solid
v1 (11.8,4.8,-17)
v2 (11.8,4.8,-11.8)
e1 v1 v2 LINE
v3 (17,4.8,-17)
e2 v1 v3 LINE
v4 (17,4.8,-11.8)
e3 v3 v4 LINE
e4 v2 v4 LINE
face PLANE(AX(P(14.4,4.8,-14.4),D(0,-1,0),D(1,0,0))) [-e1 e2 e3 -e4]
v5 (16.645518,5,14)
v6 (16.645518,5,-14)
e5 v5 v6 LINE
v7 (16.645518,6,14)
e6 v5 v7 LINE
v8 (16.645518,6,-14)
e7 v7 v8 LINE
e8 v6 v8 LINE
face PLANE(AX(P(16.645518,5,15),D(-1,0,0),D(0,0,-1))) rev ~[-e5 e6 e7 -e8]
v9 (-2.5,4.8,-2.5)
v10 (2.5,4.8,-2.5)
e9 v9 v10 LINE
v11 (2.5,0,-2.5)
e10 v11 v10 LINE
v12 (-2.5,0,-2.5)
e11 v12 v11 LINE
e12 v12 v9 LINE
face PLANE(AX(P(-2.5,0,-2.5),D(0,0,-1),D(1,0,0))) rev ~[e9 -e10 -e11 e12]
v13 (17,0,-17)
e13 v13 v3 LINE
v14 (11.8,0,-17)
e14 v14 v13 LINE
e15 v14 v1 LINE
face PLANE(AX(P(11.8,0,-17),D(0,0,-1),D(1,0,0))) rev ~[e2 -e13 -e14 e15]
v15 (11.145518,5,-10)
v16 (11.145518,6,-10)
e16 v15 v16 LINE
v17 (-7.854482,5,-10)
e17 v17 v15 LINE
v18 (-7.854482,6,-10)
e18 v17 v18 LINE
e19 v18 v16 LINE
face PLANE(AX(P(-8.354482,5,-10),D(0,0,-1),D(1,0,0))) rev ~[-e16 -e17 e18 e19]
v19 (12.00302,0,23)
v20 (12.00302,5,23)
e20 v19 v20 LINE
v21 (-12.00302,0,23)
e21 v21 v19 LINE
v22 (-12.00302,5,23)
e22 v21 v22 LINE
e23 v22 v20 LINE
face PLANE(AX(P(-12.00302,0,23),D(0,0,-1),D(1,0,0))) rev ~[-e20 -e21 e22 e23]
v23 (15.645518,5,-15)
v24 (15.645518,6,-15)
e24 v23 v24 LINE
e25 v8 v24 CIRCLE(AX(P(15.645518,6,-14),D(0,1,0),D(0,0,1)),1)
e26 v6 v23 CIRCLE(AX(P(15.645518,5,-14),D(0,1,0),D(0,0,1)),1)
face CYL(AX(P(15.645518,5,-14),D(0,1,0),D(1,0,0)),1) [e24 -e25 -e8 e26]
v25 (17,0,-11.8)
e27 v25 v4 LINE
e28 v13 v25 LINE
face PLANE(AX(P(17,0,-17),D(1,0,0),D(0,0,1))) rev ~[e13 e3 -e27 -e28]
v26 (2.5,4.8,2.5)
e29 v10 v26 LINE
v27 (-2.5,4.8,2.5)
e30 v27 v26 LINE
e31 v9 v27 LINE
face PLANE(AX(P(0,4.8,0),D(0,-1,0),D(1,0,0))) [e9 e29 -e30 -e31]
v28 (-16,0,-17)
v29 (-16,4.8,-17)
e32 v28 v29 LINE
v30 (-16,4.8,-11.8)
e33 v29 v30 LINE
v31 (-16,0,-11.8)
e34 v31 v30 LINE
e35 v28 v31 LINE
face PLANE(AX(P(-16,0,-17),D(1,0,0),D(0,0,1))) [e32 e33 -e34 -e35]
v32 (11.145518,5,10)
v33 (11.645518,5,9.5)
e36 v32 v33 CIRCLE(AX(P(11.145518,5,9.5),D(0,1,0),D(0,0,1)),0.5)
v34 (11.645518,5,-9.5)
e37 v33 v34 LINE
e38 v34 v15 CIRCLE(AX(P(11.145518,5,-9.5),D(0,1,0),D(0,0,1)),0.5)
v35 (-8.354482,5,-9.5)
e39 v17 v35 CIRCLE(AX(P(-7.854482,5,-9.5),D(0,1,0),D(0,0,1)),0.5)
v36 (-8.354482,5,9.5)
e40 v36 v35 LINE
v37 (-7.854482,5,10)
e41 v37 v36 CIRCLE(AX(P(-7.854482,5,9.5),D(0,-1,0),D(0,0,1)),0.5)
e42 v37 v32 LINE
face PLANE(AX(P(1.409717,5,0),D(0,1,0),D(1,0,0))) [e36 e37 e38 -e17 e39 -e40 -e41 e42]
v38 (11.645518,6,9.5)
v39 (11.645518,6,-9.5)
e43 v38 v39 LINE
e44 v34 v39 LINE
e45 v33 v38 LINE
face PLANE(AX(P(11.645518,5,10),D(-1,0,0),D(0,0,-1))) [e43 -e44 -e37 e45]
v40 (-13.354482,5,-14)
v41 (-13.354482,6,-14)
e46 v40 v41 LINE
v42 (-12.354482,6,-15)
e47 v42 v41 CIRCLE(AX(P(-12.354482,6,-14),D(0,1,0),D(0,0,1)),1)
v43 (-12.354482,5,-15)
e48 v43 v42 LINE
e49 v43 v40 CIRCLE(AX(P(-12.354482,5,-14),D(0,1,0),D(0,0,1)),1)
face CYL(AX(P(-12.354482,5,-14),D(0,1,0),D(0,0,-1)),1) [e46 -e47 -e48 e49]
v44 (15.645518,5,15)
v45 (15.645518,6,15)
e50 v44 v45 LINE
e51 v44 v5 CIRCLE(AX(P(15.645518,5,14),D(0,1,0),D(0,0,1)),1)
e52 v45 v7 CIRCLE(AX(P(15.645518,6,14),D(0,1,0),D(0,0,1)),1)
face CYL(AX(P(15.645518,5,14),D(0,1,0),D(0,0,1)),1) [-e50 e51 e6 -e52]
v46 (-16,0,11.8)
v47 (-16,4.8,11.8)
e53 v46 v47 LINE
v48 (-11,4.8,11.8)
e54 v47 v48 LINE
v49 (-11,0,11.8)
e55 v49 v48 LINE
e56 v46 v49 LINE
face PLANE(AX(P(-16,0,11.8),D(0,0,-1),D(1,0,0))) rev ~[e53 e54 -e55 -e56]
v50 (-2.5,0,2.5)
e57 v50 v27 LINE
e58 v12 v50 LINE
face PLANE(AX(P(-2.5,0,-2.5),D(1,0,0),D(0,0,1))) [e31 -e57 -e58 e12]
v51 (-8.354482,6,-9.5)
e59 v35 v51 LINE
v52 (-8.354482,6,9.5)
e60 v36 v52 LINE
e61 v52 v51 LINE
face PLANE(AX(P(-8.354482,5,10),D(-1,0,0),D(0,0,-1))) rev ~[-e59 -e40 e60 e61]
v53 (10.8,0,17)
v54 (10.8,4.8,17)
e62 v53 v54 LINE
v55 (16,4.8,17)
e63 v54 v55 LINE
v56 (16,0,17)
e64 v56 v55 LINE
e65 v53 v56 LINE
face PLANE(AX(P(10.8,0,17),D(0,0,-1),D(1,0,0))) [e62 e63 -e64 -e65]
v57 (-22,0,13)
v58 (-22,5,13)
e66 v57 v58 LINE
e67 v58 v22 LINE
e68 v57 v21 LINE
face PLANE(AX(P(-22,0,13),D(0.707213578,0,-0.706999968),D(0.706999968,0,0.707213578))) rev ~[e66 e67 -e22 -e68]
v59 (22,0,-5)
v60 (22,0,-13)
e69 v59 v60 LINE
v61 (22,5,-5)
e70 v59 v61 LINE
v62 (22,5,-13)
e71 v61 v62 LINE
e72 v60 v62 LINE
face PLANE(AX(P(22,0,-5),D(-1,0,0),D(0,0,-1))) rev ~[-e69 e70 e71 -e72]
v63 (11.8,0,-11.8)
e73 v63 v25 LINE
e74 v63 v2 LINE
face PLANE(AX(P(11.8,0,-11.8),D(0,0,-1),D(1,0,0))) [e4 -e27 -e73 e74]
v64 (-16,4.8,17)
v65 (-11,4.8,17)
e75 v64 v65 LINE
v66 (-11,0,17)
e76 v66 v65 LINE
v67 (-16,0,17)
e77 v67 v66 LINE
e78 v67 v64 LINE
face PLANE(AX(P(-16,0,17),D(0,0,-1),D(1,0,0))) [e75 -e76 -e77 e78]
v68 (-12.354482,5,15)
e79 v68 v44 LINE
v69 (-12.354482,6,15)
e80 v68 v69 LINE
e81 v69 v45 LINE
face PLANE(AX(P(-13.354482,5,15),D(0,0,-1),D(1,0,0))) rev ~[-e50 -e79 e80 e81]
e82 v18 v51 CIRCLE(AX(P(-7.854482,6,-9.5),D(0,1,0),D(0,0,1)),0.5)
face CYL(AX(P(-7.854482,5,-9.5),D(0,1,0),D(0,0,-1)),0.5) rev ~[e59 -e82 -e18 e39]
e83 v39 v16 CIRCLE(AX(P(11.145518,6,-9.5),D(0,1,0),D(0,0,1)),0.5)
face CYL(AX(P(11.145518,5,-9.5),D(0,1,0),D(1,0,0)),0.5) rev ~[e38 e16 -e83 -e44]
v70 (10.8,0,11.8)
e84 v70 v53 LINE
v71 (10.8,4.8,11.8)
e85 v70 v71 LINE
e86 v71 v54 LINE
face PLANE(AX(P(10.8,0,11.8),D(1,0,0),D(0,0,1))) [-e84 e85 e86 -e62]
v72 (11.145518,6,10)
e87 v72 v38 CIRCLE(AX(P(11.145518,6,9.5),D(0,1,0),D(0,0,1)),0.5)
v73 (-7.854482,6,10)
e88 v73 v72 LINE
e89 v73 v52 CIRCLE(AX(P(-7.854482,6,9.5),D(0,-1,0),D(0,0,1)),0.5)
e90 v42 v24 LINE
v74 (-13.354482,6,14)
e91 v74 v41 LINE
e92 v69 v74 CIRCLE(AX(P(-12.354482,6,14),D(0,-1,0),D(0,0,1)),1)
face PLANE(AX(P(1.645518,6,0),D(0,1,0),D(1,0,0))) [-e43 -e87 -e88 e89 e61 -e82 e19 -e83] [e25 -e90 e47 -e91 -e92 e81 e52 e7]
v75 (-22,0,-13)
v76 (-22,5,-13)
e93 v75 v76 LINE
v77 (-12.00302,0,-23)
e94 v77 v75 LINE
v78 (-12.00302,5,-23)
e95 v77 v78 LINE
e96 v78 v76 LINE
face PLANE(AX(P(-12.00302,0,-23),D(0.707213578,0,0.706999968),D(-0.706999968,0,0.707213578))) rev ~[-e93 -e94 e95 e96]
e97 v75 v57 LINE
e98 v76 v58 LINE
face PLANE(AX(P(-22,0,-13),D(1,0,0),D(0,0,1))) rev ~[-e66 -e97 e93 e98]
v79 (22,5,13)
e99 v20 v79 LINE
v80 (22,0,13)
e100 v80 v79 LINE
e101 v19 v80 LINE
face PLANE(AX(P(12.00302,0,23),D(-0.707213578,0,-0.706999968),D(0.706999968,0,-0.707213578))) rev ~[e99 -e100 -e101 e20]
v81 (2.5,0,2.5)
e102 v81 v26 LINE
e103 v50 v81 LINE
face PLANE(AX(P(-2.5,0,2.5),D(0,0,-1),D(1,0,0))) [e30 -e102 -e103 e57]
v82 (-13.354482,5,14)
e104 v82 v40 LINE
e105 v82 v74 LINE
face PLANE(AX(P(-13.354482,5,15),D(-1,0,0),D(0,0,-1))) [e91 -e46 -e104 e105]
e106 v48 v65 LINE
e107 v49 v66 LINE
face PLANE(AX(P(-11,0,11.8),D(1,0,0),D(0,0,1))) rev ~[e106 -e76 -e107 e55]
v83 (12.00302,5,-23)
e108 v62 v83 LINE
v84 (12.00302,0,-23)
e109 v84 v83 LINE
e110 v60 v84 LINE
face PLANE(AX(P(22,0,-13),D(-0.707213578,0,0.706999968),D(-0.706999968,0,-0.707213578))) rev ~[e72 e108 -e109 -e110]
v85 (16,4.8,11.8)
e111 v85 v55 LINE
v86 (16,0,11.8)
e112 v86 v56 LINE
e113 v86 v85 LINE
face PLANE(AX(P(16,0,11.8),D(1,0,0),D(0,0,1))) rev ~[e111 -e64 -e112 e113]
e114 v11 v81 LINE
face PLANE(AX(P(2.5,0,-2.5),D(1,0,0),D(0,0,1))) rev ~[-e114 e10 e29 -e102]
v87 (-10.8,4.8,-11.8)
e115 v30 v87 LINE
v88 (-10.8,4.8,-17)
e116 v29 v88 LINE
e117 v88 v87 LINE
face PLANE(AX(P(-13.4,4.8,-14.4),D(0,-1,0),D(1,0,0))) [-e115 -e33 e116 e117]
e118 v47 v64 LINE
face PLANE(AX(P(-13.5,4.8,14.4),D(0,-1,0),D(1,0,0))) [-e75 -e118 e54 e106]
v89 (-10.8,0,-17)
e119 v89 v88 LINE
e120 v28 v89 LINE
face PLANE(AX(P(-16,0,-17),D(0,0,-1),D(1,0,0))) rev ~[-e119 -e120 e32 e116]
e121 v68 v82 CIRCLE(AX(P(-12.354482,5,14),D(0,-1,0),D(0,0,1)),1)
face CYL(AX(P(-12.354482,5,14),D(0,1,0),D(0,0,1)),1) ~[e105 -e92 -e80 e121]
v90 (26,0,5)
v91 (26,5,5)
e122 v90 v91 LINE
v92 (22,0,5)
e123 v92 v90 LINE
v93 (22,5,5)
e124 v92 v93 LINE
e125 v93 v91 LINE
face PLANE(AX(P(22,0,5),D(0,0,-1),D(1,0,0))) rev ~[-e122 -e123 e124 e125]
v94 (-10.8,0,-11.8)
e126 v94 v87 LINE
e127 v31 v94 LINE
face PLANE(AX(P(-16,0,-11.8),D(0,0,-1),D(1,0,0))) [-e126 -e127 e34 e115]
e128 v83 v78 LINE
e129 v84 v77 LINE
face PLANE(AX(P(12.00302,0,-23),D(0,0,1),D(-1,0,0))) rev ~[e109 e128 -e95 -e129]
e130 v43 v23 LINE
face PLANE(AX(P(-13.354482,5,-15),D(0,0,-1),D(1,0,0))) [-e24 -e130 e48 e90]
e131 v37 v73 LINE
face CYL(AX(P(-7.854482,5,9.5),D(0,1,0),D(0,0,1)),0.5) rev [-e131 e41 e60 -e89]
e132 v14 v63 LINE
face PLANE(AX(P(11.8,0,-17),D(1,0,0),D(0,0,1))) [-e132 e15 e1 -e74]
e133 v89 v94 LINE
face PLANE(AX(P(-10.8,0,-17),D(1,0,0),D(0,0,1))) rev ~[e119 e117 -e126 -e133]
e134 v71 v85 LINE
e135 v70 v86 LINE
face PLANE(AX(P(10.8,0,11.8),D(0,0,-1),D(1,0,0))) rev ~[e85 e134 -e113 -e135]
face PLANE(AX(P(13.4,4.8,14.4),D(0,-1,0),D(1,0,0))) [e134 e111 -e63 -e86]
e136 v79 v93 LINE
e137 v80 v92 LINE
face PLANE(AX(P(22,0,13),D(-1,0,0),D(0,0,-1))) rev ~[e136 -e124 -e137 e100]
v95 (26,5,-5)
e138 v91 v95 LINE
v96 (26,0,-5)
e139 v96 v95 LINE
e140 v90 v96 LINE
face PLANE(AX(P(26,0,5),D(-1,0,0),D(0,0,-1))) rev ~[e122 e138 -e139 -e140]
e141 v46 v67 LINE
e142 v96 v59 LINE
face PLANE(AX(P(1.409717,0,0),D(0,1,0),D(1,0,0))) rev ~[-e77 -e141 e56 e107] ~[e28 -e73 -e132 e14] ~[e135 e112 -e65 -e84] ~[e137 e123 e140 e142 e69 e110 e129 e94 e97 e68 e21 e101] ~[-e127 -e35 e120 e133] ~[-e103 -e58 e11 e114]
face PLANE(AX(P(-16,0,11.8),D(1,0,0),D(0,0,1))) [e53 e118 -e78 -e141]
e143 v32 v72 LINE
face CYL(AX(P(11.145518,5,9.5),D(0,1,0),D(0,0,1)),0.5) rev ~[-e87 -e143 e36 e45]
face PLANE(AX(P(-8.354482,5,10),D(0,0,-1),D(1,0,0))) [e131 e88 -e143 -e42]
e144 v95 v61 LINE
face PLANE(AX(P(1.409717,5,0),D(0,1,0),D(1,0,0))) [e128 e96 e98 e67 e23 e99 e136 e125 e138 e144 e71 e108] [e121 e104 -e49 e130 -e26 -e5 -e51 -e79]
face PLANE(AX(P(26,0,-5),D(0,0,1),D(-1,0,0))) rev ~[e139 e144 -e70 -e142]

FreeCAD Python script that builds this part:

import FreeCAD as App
import Part
import Sketcher
Q = App.Units.Quantity


def edges_at(feature, points):
    """Names of the edges that pass closest to the given points."""
    edges = feature.Shape.Edges
    near = lambda p: min(range(len(edges)), key=lambda i: edges[i].distToShape(Part.Vertex(*p))[0])
    return sorted({f"Edge{near(p) + 1}" for p in points})


def add_polygon(sketch, points):
    """Adds a closed chain of lines whose ends are joined by coincident constraints."""
    first, n = sketch.GeometryCount, len(points)
    for a, b in zip(points, points[1:] + points[:1]):
        sketch.addGeometry(Part.LineSegment(App.Vector(*a, 0), App.Vector(*b, 0)), False)
    for i in range(n):
        sketch.addConstraint(Sketcher.Constraint("Coincident", first + i, 2, first + (i + 1) % n, 1))

doc = App.newDocument("Part")
body = doc.addObject("PartDesign::Body", "Body")

sketch1 = body.newObject("Sketcher::SketchObject", "Sketch")
sketch1.AttachmentSupport = (doc.getObject("XZ_Plane"), [""])
sketch1.MapMode = "FlatFace"
add_polygon(sketch1, [(22, -13), (12, -23), (-12, -23), (-22, -13), (-22, 13), (-12, 23), (12, 23), (22, 13), (22, 5), (26, 5), (26, -5), (22, -5)])
sketch1.addConstraint(Sketcher.Constraint("Horizontal", 1))
sketch1.addConstraint(Sketcher.Constraint("Vertical", 3))
sketch1.addConstraint(Sketcher.Constraint("Horizontal", 5))
sketch1.addConstraint(Sketcher.Constraint("Vertical", 7))
sketch1.addConstraint(Sketcher.Constraint("Horizontal", 8))
sketch1.addConstraint(Sketcher.Constraint("Vertical", 9))
sketch1.addConstraint(Sketcher.Constraint("Horizontal", 10))
sketch1.addConstraint(Sketcher.Constraint("Vertical", 11))
sketch1.addConstraint(Sketcher.Constraint("Symmetric", 0, 2, 4, 2, -1, 1))
sketch1.addConstraint(Sketcher.Constraint("Symmetric", 2, 2, 6, 2, -1, 1))
sketch1.addConstraint(Sketcher.Constraint("Symmetric", 3, 2, 11, 2, -1, 1))
sketch1.addConstraint(Sketcher.Constraint("Parallel", 2, 6))
sketch1.addConstraint(Sketcher.Constraint("Horizontal", 3, 2, 6, 2))
sketch1.addConstraint(Sketcher.Constraint("Vertical", 1, 2, 4, 2))
sketch1.addConstraint(Sketcher.Constraint("Equal", 7, 11))
sketch1.addConstraint(Sketcher.Constraint("DistanceX", 8, 1, 8, 2, Q("4 mm")))
sketch1.addConstraint(Sketcher.Constraint("DistanceY", 3, 1, 3, 2, Q("26 mm")))
sketch1.addConstraint(Sketcher.Constraint("DistanceY", 7, 2, 7, 1, Q("8 mm")))
sketch1.addConstraint(Sketcher.Constraint("DistanceY", 0, 2, -1, 1, Q("23 mm")))
sketch1.addConstraint(Sketcher.Constraint("DistanceX", 2, 2, -1, 1, Q("22 mm")))
sketch1.addConstraint(Sketcher.Constraint("Distance", 0, Q("14.14 mm")))
pad1 = body.newObject("PartDesign::Pad", "Pad")
pad1.Profile = sketch1
pad1.Length = 5
pad1.Reversed = True

sketch2 = body.newObject("Sketcher::SketchObject", "Sketch001")
sketch2.AttachmentSupport = (doc.getObject("XZ_Plane"), [""])
sketch2.MapMode = "FlatFace"
sketch2.AttachmentOffset = App.Placement(App.Vector(0, 0, -5), App.Rotation())
add_polygon(sketch2, [(-13, -15), (-13, 15), (17, 15), (17, -15)])
add_polygon(sketch2, [(12, 10), (-8, 10), (-8, -10), (12, -10)])
sketch2.addConstraint(Sketcher.Constraint("Vertical", 0))
sketch2.addConstraint(Sketcher.Constraint("Horizontal", 1))
sketch2.addConstraint(Sketcher.Constraint("Vertical", 2))
sketch2.addConstraint(Sketcher.Constraint("Horizontal", 3))
sketch2.addConstraint(Sketcher.Constraint("Horizontal", 4))
sketch2.addConstraint(Sketcher.Constraint("Vertical", 5))
sketch2.addConstraint(Sketcher.Constraint("Horizontal", 6))
sketch2.addConstraint(Sketcher.Constraint("Vertical", 7))
sketch2.addConstraint(Sketcher.Constraint("Equal", 3, 0))
sketch2.addConstraint(Sketcher.Constraint("Equal", 6, 5))
sketch2.addConstraint(Sketcher.Constraint("DistanceX", 1, 1, 1, 2, Q("30 mm")))
sketch2.addConstraint(Sketcher.Constraint("DistanceX", 4, 2, 4, 1, Q("20 mm")))
sketch2.addConstraint(Sketcher.Constraint("DistanceY", -1, 1, 0, 2, Q("15 mm")))
sketch2.addConstraint(Sketcher.Constraint("DistanceY", -1, 1, 4, 2, Q("10 mm")))
sketch2.addConstraint(Sketcher.Constraint("DistanceX", 0, 2, 4, 2, Q("5 mm")))
sketch2.addConstraint(Sketcher.Constraint("DistanceX", 0, 2, -1, 1, Q("13.354482 mm")))
pad2 = body.newObject("PartDesign::Pad", "Pad001")
pad2.Profile = sketch2
pad2.Length = 1
pad2.Reversed = True

sketch3 = body.newObject("Sketcher::SketchObject", "Sketch002")
sketch3.AttachmentSupport = (doc.getObject("XZ_Plane"), [""])
sketch3.MapMode = "FlatFace"
add_polygon(sketch3, [(-16, 17), (-16, 12), (-11, 12), (-11, 17)])
add_polygon(sketch3, [(-16, -12), (-16, -17), (-11, -17), (-11, -12)])
add_polygon(sketch3, [(12, -12), (12, -17), (17, -17), (17, -12)])
add_polygon(sketch3, [(11, 17), (11, 12), (16, 12), (16, 17)])
add_polygon(sketch3, [(-2, 2), (-2, -2), (2, -2), (2, 2)])
sketch3.addConstraint(Sketcher.Constraint("Vertical", 0))
sketch3.addConstraint(Sketcher.Constraint("Horizontal", 1))
sketch3.addConstraint(Sketcher.Constraint("Vertical", 2))
sketch3.addConstraint(Sketcher.Constraint("Horizontal", 3))
sketch3.addConstraint(Sketcher.Constraint("Vertical", 4))
sketch3.addConstraint(Sketcher.Constraint("Horizontal", 5))
sketch3.addConstraint(Sketcher.Constraint("Vertical", 6))
sketch3.addConstraint(Sketcher.Constraint("Horizontal", 7))
sketch3.addConstraint(Sketcher.Constraint("Vertical", 8))
sketch3.addConstraint(Sketcher.Constraint("Horizontal", 9))
sketch3.addConstraint(Sketcher.Constraint("Vertical", 10))
sketch3.addConstraint(Sketcher.Constraint("Horizontal", 11))
sketch3.addConstraint(Sketcher.Constraint("Vertical", 12))
sketch3.addConstraint(Sketcher.Constraint("Horizontal", 13))
sketch3.addConstraint(Sketcher.Constraint("Vertical", 14))
sketch3.addConstraint(Sketcher.Constraint("Horizontal", 15))
sketch3.addConstraint(Sketcher.Constraint("Vertical", 16))
sketch3.addConstraint(Sketcher.Constraint("Horizontal", 17))
sketch3.addConstraint(Sketcher.Constraint("Vertical", 18))
sketch3.addConstraint(Sketcher.Constraint("Horizontal", 19))
sketch3.addConstraint(Sketcher.Constraint("Symmetric", 6, 2, 12, 2, -1, 1))
sketch3.addConstraint(Sketcher.Constraint("Symmetric", 4, 2, 14, 2, -1, 1))
sketch3.addConstraint(Sketcher.Constraint("Symmetric", 16, 2, 18, 2, -1, 1))
sketch3.addConstraint(Sketcher.Constraint("Symmetric", 0, 2, 13, 2, -2))
sketch3.addConstraint(Sketcher.Constraint("Horizontal", 5, 2, 8, 2))
sketch3.addConstraint(Sketcher.Constraint("Horizontal", 7, 2, 10, 2))
sketch3.addConstraint(Sketcher.Constraint("Horizontal", 3, 2, 14, 2))
sketch3.addConstraint(Sketcher.Constraint("Equal", 7, 9))
sketch3.addConstraint(Sketcher.Constraint("Equal", 3, 17))
sketch3.addConstraint(Sketcher.Constraint("Equal", 15, 0))
sketch3.addConstraint(Sketcher.Constraint("Equal", 19, 16))
sketch3.addConstraint(Sketcher.Constraint("DistanceX", 1, 1, 1, 2, Q("5 mm")))
sketch3.addConstraint(Sketcher.Constraint("DistanceX", 5, 1, 5, 2, Q("5.2 mm")))
sketch3.addConstraint(Sketcher.Constraint("DistanceX", 0, 2, -1, 1, Q("16 mm")))
sketch3.addConstraint(Sketcher.Constraint("DistanceY", -1, 1, 2, 2, Q("17 mm")))
sketch3.addConstraint(Sketcher.Constraint("DistanceX", -1, 1, 9, 2, Q("17 mm")))
pocket1 = body.newObject("PartDesign::Pocket", "Pocket")
pocket1.Profile = sketch3
pocket1.Length = 4.8
doc.recompute()

fillet = body.newObject("PartDesign::Fillet", "Fillet")
fillet.Base = (pocket1, edges_at(pocket1, [
    (16.646, 5.5, -15),
    (-13.354, 5.5, -15),
    (-13.354, 5.5, 15),
    (16.646, 5.5, 15),
]))
fillet.Radius = 1
doc.recompute()

fillet2 = body.newObject("PartDesign::Fillet", "Fillet001")
fillet2.Base = (fillet, edges_at(fillet, [
    (-8.354, 5.5, -10),
    (-8.354, 5.5, 10),
    (11.646, 5.5, 10),
    (11.646, 5.5, -10),
]))
fillet2.Radius = 0.5

doc.recompute()
